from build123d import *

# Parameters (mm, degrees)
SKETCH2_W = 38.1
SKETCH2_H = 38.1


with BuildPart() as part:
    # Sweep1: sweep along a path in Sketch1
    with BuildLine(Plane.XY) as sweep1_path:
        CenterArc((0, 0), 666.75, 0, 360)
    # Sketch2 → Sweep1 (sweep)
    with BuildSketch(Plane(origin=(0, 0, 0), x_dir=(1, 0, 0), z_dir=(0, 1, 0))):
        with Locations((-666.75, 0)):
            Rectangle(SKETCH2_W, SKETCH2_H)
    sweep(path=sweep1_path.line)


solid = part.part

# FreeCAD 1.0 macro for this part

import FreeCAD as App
import Part
import Sketcher
Q = App.Units.Quantity

doc = App.newDocument("Part")
body = doc.addObject("PartDesign::Body", "Body")

sketch1 = body.newObject("Sketcher::SketchObject", "Sketch")
sketch1.AttachmentSupport = (doc.getObject("XZ_Plane"), [""])
sketch1.MapMode = "FlatFace"
sketch1.addGeometry([
    Part.LineSegment(App.Vector(-686, -19, 0), App.Vector(-686, 19, 0)),
    Part.LineSegment(App.Vector(-686, 19, 0), App.Vector(-648, 19, 0)),
    Part.LineSegment(App.Vector(-648, 19, 0), App.Vector(-648, -19, 0)),
    Part.LineSegment(App.Vector(-648, -19, 0), App.Vector(-686, -19, 0)),
], False)
sketch1.addConstraint([
    Sketcher.Constraint("Coincident", 0, 2, 1, 1),
    Sketcher.Constraint("Coincident", 1, 2, 2, 1),
    Sketcher.Constraint("Coincident", 2, 2, 3, 1),
    Sketcher.Constraint("Coincident", 3, 2, 0, 1),
    Sketcher.Constraint("Vertical", 0),
    Sketcher.Constraint("Horizontal", 1),
    Sketcher.Constraint("Vertical", 2),
    Sketcher.Constraint("Horizontal", 3),
    Sketcher.Constraint("Equal", 3, 0),
    Sketcher.Constraint("DistanceX", 1, 1, 1, 2, Q("1.5 in")),
    Sketcher.Constraint("DistanceX", 0, 2, -1, 1, Q("27 in")),
    Sketcher.Constraint("DistanceY", -1, 1, 0, 2, Q("0.75 in")),
])

sketch2 = body.newObject("Sketcher::SketchObject", "Sketch001")
sketch2.AttachmentSupport = (doc.getObject("XY_Plane"), [""])
sketch2.MapMode = "FlatFace"
sketch2.addGeometry(Part.Circle(App.Vector(0, 0, 0), App.Vector(0, 0, 1), 667), False)
sketch2.addConstraint([
    Sketcher.Constraint("Coincident", 0, 3, -1, 1),
    Sketcher.Constraint("Diameter", 0, Q("52.5 in")),
])
doc.recompute()

additivepipe = body.newObject("PartDesign::AdditivePipe", "AdditivePipe")
additivepipe.Profile = sketch1
additivepipe.Spine = (sketch2, ["Edge1"])

doc.recompute()
